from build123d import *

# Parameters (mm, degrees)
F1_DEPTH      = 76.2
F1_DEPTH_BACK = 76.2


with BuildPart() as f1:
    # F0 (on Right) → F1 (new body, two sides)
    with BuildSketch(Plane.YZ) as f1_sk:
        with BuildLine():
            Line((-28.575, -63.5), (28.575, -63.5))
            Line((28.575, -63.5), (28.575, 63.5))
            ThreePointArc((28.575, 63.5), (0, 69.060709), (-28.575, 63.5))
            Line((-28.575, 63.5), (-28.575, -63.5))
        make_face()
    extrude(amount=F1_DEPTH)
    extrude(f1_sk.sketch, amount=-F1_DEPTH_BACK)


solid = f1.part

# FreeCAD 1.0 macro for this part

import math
import FreeCAD as App
import Part
import Sketcher
Q = App.Units.Quantity

doc = App.newDocument("Part")
body = doc.addObject("PartDesign::Body", "Body")

# Sketch on YZ plane
sketch1 = body.newObject("Sketcher::SketchObject", "Sketch")
sketch1.AttachmentSupport = (doc.getObject("YZ_Plane"), [""])
sketch1.MapMode = "FlatFace"
sketch1.addGeometry(Part.LineSegment(App.Vector(-29, -64, 0), App.Vector(29, -64, 0)), False)
sketch1.addGeometry(Part.LineSegment(App.Vector(29, -64, 0), App.Vector(29, 64, 0)), False)
sketch1.addGeometry(Part.ArcOfCircle(Part.Circle(App.Vector(0, -7, 0), App.Vector(0, 0, 1), 76), math.radians(68), math.radians(112)), False)
sketch1.addGeometry(Part.LineSegment(App.Vector(-29, 64, 0), App.Vector(-29, -64, 0)), False)
sketch1.addConstraint(Sketcher.Constraint("Coincident", 0, 2, 1, 1))
sketch1.addConstraint(Sketcher.Constraint("Coincident", 1, 2, 2, 1))
sketch1.addConstraint(Sketcher.Constraint("Coincident", 2, 2, 3, 1))
sketch1.addConstraint(Sketcher.Constraint("Coincident", 3, 2, 0, 1))
sketch1.addConstraint(Sketcher.Constraint("Horizontal", 0))
sketch1.addConstraint(Sketcher.Constraint("Vertical", 1))
sketch1.addConstraint(Sketcher.Constraint("Vertical", 3))
sketch1.addConstraint(Sketcher.Constraint("Symmetric", 0, 2, 2, 2, -1, 1))
sketch1.addConstraint(Sketcher.Constraint("PointOnObject", 2, 3, -2))
sketch1.addConstraint(Sketcher.Constraint("DistanceY", 1, 1, 1, 2, Q("5 in")))
sketch1.addConstraint(Sketcher.Constraint("DistanceX", 0, 1, 0, 2, Q("2.25 in")))
sketch1.addConstraint(Sketcher.Constraint("Radius", 2, Q("76.200005 mm")))
pad1 = body.newObject("PartDesign::Pad", "Pad")
pad1.Profile = sketch1
pad1.Type = "TwoLengths"
pad1.Length = Q("3 in")
pad1.Length2 = Q("3 in")

doc.recompute()
